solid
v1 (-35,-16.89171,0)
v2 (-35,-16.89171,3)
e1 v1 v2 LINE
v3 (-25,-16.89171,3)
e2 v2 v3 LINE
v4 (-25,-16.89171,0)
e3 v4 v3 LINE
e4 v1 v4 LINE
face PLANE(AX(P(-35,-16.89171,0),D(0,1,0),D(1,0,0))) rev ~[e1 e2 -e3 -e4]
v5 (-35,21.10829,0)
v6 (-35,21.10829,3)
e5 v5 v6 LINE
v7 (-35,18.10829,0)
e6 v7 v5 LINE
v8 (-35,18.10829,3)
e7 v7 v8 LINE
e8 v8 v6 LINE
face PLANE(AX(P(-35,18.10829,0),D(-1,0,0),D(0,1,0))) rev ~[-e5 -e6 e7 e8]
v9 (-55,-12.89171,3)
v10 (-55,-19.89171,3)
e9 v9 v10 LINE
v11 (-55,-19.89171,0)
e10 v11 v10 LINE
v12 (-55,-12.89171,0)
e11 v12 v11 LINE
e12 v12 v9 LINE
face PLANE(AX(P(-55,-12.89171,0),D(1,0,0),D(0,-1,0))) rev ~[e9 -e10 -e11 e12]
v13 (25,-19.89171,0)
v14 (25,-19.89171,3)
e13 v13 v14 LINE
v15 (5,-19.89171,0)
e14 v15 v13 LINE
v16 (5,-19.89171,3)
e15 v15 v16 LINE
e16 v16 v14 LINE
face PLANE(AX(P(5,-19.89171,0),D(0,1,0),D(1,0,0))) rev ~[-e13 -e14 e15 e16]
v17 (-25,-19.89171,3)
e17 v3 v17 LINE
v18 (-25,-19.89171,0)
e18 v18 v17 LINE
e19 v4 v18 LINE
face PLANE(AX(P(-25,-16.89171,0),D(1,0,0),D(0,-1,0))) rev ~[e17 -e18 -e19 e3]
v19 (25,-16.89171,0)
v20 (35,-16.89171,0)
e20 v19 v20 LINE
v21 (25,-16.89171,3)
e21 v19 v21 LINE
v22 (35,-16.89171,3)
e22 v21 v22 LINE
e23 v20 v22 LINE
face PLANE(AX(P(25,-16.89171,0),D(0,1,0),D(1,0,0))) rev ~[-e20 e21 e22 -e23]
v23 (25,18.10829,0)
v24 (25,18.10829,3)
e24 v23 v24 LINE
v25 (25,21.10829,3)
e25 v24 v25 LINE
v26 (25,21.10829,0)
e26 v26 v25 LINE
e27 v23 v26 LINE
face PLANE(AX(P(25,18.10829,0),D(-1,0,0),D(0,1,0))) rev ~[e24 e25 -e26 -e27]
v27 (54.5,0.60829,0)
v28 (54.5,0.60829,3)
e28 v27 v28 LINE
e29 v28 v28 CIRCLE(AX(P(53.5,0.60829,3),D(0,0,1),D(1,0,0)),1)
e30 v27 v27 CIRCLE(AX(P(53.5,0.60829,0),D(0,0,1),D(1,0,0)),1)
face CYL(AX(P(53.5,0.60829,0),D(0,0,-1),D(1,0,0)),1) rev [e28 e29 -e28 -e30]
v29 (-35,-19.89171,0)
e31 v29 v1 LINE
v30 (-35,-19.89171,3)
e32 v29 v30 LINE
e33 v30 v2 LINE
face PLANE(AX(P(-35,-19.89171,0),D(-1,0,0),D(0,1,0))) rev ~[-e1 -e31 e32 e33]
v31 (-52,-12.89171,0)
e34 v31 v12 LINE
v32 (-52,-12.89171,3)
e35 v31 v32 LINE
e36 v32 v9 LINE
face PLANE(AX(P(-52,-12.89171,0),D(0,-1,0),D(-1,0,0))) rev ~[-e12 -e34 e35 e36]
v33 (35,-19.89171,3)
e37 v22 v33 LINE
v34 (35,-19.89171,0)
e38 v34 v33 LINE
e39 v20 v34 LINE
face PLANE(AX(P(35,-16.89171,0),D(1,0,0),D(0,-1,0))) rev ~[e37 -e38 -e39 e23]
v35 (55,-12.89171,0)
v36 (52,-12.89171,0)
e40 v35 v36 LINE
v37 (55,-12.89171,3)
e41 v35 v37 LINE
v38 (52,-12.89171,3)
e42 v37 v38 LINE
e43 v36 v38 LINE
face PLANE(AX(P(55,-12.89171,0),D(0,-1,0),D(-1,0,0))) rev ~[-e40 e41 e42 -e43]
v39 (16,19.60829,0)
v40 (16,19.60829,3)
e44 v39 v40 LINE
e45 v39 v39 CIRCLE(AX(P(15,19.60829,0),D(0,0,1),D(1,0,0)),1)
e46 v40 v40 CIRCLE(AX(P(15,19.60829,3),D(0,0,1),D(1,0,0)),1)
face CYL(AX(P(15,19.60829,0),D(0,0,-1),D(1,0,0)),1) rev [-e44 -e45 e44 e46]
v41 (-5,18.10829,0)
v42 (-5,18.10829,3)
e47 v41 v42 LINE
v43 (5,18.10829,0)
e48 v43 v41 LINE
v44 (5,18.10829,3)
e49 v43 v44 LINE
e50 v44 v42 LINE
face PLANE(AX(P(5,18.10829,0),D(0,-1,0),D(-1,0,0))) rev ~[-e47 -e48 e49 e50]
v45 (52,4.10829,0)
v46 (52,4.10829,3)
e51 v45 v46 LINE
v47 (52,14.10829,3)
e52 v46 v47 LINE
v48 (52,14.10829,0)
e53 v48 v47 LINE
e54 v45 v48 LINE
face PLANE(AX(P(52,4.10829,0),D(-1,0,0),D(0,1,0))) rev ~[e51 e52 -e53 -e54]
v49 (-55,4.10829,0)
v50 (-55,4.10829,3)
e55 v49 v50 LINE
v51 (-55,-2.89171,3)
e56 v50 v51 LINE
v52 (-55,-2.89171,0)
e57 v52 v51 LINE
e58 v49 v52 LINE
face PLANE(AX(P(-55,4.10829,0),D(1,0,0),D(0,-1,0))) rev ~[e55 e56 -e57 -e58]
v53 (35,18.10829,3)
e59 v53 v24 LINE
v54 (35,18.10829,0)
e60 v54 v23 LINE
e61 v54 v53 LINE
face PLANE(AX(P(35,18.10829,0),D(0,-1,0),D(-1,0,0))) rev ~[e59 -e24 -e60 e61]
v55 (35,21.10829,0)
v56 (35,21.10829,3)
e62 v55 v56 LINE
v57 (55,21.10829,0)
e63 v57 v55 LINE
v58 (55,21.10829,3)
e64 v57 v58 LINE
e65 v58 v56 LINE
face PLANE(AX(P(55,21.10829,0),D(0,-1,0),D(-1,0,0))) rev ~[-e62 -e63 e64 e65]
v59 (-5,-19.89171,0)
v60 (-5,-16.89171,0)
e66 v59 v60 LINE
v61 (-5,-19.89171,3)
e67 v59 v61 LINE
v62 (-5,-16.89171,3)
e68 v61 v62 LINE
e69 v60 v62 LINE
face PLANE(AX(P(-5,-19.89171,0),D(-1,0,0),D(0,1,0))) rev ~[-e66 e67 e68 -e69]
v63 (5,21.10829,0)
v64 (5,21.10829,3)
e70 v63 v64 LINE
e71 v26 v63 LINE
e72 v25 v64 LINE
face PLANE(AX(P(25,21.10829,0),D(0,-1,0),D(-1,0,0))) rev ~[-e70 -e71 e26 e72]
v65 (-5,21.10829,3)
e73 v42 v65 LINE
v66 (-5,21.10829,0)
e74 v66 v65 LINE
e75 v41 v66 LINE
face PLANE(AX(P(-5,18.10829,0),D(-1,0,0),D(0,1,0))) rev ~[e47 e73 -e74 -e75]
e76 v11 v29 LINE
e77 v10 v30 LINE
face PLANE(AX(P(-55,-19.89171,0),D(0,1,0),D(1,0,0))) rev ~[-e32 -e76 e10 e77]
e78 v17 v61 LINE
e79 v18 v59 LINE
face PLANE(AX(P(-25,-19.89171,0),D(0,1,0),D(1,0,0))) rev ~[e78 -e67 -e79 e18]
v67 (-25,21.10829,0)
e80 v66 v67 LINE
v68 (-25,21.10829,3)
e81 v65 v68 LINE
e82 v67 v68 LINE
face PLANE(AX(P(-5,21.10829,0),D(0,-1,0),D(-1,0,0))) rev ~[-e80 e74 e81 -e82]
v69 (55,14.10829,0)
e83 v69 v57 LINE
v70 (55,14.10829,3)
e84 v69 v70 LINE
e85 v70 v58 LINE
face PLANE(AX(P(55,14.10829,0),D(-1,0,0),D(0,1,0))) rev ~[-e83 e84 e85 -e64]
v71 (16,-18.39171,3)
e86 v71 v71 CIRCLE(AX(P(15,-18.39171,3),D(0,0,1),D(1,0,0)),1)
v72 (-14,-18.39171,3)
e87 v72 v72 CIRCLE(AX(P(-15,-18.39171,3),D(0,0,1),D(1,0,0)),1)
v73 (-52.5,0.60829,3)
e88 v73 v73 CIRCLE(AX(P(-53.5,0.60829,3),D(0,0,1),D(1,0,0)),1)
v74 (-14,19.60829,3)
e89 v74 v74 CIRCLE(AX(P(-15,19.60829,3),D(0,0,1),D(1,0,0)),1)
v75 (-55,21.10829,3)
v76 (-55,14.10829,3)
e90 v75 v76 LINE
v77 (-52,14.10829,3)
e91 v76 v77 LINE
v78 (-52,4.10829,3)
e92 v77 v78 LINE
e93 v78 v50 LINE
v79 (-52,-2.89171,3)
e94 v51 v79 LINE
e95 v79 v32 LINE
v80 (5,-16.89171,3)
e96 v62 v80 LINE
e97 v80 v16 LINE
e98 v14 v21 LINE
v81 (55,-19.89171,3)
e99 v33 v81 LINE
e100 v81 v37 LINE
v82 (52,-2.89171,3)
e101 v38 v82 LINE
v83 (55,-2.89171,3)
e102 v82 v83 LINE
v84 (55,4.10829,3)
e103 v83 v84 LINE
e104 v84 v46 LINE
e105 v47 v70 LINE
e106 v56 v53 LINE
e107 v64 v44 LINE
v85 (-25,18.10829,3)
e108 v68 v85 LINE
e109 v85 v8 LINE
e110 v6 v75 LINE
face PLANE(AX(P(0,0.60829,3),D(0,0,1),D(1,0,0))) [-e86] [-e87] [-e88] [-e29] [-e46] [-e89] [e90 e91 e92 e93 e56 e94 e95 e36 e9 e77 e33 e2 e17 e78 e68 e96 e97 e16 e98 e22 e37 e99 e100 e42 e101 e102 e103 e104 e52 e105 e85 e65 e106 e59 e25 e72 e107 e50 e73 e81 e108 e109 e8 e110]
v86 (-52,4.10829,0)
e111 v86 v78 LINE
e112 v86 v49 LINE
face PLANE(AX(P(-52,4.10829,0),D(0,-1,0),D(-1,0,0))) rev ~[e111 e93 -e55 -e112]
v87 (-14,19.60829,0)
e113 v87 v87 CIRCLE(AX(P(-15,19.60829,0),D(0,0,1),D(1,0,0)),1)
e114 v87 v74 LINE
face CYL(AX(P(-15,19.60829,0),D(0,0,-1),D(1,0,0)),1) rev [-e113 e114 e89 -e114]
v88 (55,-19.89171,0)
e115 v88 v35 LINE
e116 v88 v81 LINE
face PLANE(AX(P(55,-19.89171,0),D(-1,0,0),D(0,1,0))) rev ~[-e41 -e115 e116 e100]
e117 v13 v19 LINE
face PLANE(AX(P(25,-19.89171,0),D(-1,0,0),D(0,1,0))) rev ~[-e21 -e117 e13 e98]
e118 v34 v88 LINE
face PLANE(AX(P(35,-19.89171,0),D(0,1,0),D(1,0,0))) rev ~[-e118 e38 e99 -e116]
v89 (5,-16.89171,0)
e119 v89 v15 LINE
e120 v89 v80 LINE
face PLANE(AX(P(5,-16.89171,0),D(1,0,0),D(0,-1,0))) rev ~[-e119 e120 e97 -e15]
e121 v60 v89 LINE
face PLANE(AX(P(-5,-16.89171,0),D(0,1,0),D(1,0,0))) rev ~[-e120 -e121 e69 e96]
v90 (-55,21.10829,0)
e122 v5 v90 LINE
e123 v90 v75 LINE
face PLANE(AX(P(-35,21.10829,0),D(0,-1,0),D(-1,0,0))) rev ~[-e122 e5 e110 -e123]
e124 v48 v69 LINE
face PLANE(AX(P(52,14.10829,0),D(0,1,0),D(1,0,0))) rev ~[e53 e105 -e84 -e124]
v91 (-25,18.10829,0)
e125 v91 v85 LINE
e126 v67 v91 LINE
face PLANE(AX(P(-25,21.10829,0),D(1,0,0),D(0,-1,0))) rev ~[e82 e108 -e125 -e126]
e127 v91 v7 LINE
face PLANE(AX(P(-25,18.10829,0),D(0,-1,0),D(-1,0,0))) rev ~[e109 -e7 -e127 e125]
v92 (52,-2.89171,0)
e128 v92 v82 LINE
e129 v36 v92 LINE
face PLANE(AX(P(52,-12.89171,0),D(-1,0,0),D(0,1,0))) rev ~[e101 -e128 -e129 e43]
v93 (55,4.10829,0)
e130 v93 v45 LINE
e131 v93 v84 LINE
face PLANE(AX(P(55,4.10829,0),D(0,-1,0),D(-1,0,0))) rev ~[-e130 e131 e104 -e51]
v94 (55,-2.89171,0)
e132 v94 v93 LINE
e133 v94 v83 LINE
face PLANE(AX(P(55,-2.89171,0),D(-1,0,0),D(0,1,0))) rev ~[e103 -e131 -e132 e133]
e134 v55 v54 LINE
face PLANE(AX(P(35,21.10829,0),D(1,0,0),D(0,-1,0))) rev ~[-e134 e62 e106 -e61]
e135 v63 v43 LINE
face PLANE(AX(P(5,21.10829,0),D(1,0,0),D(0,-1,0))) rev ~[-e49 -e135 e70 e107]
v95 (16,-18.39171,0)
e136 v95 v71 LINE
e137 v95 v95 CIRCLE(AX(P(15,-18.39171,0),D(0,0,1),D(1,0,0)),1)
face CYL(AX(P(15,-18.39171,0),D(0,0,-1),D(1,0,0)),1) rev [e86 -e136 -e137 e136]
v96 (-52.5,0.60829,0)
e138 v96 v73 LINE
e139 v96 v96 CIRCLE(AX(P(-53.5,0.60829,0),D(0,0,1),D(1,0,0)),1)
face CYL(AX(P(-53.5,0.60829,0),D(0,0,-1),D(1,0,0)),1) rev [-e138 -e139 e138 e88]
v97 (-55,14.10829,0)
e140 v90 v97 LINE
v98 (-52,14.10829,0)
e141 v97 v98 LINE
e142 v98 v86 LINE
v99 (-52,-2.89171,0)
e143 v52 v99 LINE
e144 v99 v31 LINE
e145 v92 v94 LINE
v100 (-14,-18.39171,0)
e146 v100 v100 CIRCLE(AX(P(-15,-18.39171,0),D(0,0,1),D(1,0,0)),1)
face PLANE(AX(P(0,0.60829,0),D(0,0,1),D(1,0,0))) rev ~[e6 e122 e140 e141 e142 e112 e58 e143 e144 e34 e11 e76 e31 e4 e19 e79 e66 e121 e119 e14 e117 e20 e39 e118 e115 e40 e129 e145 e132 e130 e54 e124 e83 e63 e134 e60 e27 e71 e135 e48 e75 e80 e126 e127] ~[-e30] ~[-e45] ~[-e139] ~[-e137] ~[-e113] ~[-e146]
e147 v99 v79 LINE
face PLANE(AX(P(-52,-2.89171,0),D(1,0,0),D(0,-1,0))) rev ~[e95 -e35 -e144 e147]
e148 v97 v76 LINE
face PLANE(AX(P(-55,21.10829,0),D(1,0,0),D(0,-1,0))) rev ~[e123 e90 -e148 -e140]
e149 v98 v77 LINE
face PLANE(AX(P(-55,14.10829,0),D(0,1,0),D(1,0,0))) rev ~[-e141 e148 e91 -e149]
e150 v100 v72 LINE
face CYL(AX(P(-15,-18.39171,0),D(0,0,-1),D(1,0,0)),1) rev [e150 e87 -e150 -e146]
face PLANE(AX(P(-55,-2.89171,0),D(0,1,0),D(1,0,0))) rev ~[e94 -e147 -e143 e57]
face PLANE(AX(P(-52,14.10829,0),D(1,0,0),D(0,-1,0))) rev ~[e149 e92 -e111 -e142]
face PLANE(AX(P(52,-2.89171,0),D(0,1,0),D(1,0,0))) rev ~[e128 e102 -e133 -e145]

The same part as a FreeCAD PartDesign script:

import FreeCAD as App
import Part
import Sketcher


def add_polygon(sketch, points):
    """Adds a closed chain of lines whose ends are joined by coincident constraints."""
    first, n = sketch.GeometryCount, len(points)
    for a, b in zip(points, points[1:] + points[:1]):
        sketch.addGeometry(Part.LineSegment(App.Vector(*a, 0), App.Vector(*b, 0)), False)
    for i in range(n):
        sketch.addConstraint(Sketcher.Constraint("Coincident", first + i, 2, first + (i + 1) % n, 1))

doc = App.newDocument("Part")
body = doc.addObject("PartDesign::Body", "Body")

sketch1 = body.newObject("Sketcher::SketchObject", "Sketch")
sketch1.AttachmentSupport = (doc.getObject("XY_Plane"), [""])
sketch1.MapMode = "FlatFace"
add_polygon(sketch1, [(-35, 21.1), (-55, 21.1), (-55, 14.1), (-52, 14.1), (-52, 4.1), (-55, 4.1), (-55, -2.9), (-52, -2.9), (-52, -12.9), (-55, -12.9), (-55, -19.9), (-35, -19.9), (-35, -16.9), (-25, -16.9), (-25, -19.9), (-5, -19.9), (-5, -16.9), (5, -16.9), (5, -19.9), (25, -19.9), (25, -16.9), (35, -16.9), (35, -19.9), (55, -19.9), (55, -12.9), (52, -12.9), (52, -2.9), (55, -2.9), (55, 4.1), (52, 4.1), (52, 14.1), (55, 14.1), (55, 21.1), (35, 21.1), (35, 18.1), (25, 18.1), (25, 21.1), (5, 21.1), (5, 18.1), (-5, 18.1), (-5, 21.1), (-25, 21.1), (-25, 18.1), (-35, 18.1)])
sketch1.addGeometry(Part.Circle(App.Vector(-15, -18.4, 0), App.Vector(0, 0, 1), 1), False)
sketch1.addGeometry(Part.Circle(App.Vector(15, -18.4, 0), App.Vector(0, 0, 1), 1), False)
sketch1.addGeometry(Part.Circle(App.Vector(-53.5, 0.6, 0), App.Vector(0, 0, 1), 1), False)
sketch1.addGeometry(Part.Circle(App.Vector(-15, 19.6, 0), App.Vector(0, 0, 1), 1), False)
sketch1.addGeometry(Part.Circle(App.Vector(53.5, 0.6, 0), App.Vector(0, 0, 1), 1), False)
sketch1.addGeometry(Part.Circle(App.Vector(15, 19.6, 0), App.Vector(0, 0, 1), 1), False)
sketch1.addConstraint([
    Sketcher.Constraint("Horizontal", 0),
    Sketcher.Constraint("Vertical", 1),
    Sketcher.Constraint("Horizontal", 2),
    Sketcher.Constraint("Vertical", 3),
    Sketcher.Constraint("Horizontal", 4),
    Sketcher.Constraint("Vertical", 5),
    Sketcher.Constraint("Horizontal", 6),
    Sketcher.Constraint("Vertical", 7),
    Sketcher.Constraint("Horizontal", 8),
    Sketcher.Constraint("Vertical", 9),
    Sketcher.Constraint("Horizontal", 10),
    Sketcher.Constraint("Vertical", 11),
    Sketcher.Constraint("Horizontal", 12),
    Sketcher.Constraint("Vertical", 13),
    Sketcher.Constraint("Horizontal", 14),
    Sketcher.Constraint("Vertical", 15),
    Sketcher.Constraint("Horizontal", 16),
    Sketcher.Constraint("Vertical", 17),
    Sketcher.Constraint("Horizontal", 18),
    Sketcher.Constraint("Vertical", 19),
    Sketcher.Constraint("Horizontal", 20),
    Sketcher.Constraint("Vertical", 21),
    Sketcher.Constraint("Horizontal", 22),
    Sketcher.Constraint("Vertical", 23),
    Sketcher.Constraint("Horizontal", 24),
    Sketcher.Constraint("Vertical", 25),
    Sketcher.Constraint("Horizontal", 26),
    Sketcher.Constraint("Vertical", 27),
    Sketcher.Constraint("Horizontal", 28),
    Sketcher.Constraint("Vertical", 29),
    Sketcher.Constraint("Horizontal", 30),
    Sketcher.Constraint("Vertical", 31),
    Sketcher.Constraint("Horizontal", 32),
    Sketcher.Constraint("Vertical", 33),
    Sketcher.Constraint("Horizontal", 34),
    Sketcher.Constraint("Vertical", 35),
    Sketcher.Constraint("Horizontal", 36),
    Sketcher.Constraint("Vertical", 37),
    Sketcher.Constraint("Horizontal", 38),
    Sketcher.Constraint("Vertical", 39),
    Sketcher.Constraint("Horizontal", 40),
    Sketcher.Constraint("Vertical", 41),
    Sketcher.Constraint("Horizontal", 42),
    Sketcher.Constraint("Vertical", 43),
    Sketcher.Constraint("Equal", 44, 45),
    Sketcher.Constraint("Equal", 45, 46),
    Sketcher.Constraint("Equal", 46, 47),
    Sketcher.Constraint("Equal", 47, 48),
    Sketcher.Constraint("Equal", 48, 49),
    Sketcher.Constraint("Symmetric", 44, 3, 45, 3, -2),
    Sketcher.Constraint("Symmetric", 46, 3, 48, 3, -2),
    Sketcher.Constraint("Symmetric", 47, 3, 49, 3, -2),
    Sketcher.Constraint("Symmetric", 14, 2, 17, 2, -2),
    Sketcher.Constraint("Symmetric", 12, 2, 19, 2, -2),
    Sketcher.Constraint("Symmetric", 10, 2, 21, 2, -2),
    Sketcher.Constraint("Symmetric", 8, 2, 23, 2, -2),
    Sketcher.Constraint("Symmetric", 6, 2, 25, 2, -2),
    Sketcher.Constraint("Symmetric", 4, 2, 27, 2, -2),
    Sketcher.Constraint("Symmetric", 2, 2, 29, 2, -2),
    Sketcher.Constraint("Symmetric", 0, 2, 31, 2, -2),
    Sketcher.Constraint("Symmetric", 36, 2, 39, 2, -2),
    Sketcher.Constraint("Symmetric", 34, 2, 41, 2, -2),
    Sketcher.Constraint("Horizontal", 10, 2, 13, 2),
    Sketcher.Constraint("Horizontal", 12, 2, 15, 2),
    Sketcher.Constraint("Horizontal", 32, 2, 35, 2),
    Sketcher.Constraint("Horizontal", 34, 2, 37, 2),
    Sketcher.Constraint("Vertical", 44, 3, 47, 3),
    Sketcher.Constraint("Vertical", 1, 2, 4, 2),
    Sketcher.Constraint("Vertical", 3, 2, 6, 2),
    Sketcher.Constraint("Vertical", 5, 2, 8, 2),
    Sketcher.Constraint("Vertical", 21, 2, 32, 2),
    Sketcher.Constraint("Vertical", 19, 2, 34, 2),
    Sketcher.Constraint("Vertical", 17, 2, 36, 2),
    Sketcher.Constraint("Vertical", 11, 2, 42, 2),
    Sketcher.Constraint("Equal", 10, 14),
    Sketcher.Constraint("Equal", 12, 16),
    Sketcher.Constraint("Equal", 42, 3),
    Sketcher.Constraint("Equal", 1, 5),
    Sketcher.Constraint("Equal", 3, 7),
    Sketcher.Constraint("Equal", 5, 9),
    Sketcher.Constraint("Equal", 30, 11),
    Sketcher.Constraint("Equal", 21, 33),
    Sketcher.Constraint("Diameter", 44, 2.0),
    Sketcher.Constraint("DistanceX", 0, 2, 0, 1, 20.0),
    Sketcher.Constraint("DistanceX", 2, 1, 2, 2, 3.0),
    Sketcher.Constraint("DistanceX", 12, 1, 12, 2, 10.0),
    Sketcher.Constraint("DistanceY", 1, 2, 1, 1, 7.0),
    Sketcher.Constraint("DistanceX", 44, 3, -1, 1, 15.0),
    Sketcher.Constraint("DistanceY", 44, 3, 46, 3, 19.0),
    Sketcher.Constraint("DistanceY", 44, 3, 47, 3, 38.0),
    Sketcher.Constraint("DistanceX", 46, 3, 48, 3, 107.0),
    Sketcher.Constraint("DistanceY", 46, 3, 0, 2, 20.5),
    Sketcher.Constraint("DistanceY", 44, 3, -1, 1, 18.39171),
])
pad1 = body.newObject("PartDesign::Pad", "Pad")
pad1.Profile = sketch1
pad1.Length = 3

doc.recompute()
